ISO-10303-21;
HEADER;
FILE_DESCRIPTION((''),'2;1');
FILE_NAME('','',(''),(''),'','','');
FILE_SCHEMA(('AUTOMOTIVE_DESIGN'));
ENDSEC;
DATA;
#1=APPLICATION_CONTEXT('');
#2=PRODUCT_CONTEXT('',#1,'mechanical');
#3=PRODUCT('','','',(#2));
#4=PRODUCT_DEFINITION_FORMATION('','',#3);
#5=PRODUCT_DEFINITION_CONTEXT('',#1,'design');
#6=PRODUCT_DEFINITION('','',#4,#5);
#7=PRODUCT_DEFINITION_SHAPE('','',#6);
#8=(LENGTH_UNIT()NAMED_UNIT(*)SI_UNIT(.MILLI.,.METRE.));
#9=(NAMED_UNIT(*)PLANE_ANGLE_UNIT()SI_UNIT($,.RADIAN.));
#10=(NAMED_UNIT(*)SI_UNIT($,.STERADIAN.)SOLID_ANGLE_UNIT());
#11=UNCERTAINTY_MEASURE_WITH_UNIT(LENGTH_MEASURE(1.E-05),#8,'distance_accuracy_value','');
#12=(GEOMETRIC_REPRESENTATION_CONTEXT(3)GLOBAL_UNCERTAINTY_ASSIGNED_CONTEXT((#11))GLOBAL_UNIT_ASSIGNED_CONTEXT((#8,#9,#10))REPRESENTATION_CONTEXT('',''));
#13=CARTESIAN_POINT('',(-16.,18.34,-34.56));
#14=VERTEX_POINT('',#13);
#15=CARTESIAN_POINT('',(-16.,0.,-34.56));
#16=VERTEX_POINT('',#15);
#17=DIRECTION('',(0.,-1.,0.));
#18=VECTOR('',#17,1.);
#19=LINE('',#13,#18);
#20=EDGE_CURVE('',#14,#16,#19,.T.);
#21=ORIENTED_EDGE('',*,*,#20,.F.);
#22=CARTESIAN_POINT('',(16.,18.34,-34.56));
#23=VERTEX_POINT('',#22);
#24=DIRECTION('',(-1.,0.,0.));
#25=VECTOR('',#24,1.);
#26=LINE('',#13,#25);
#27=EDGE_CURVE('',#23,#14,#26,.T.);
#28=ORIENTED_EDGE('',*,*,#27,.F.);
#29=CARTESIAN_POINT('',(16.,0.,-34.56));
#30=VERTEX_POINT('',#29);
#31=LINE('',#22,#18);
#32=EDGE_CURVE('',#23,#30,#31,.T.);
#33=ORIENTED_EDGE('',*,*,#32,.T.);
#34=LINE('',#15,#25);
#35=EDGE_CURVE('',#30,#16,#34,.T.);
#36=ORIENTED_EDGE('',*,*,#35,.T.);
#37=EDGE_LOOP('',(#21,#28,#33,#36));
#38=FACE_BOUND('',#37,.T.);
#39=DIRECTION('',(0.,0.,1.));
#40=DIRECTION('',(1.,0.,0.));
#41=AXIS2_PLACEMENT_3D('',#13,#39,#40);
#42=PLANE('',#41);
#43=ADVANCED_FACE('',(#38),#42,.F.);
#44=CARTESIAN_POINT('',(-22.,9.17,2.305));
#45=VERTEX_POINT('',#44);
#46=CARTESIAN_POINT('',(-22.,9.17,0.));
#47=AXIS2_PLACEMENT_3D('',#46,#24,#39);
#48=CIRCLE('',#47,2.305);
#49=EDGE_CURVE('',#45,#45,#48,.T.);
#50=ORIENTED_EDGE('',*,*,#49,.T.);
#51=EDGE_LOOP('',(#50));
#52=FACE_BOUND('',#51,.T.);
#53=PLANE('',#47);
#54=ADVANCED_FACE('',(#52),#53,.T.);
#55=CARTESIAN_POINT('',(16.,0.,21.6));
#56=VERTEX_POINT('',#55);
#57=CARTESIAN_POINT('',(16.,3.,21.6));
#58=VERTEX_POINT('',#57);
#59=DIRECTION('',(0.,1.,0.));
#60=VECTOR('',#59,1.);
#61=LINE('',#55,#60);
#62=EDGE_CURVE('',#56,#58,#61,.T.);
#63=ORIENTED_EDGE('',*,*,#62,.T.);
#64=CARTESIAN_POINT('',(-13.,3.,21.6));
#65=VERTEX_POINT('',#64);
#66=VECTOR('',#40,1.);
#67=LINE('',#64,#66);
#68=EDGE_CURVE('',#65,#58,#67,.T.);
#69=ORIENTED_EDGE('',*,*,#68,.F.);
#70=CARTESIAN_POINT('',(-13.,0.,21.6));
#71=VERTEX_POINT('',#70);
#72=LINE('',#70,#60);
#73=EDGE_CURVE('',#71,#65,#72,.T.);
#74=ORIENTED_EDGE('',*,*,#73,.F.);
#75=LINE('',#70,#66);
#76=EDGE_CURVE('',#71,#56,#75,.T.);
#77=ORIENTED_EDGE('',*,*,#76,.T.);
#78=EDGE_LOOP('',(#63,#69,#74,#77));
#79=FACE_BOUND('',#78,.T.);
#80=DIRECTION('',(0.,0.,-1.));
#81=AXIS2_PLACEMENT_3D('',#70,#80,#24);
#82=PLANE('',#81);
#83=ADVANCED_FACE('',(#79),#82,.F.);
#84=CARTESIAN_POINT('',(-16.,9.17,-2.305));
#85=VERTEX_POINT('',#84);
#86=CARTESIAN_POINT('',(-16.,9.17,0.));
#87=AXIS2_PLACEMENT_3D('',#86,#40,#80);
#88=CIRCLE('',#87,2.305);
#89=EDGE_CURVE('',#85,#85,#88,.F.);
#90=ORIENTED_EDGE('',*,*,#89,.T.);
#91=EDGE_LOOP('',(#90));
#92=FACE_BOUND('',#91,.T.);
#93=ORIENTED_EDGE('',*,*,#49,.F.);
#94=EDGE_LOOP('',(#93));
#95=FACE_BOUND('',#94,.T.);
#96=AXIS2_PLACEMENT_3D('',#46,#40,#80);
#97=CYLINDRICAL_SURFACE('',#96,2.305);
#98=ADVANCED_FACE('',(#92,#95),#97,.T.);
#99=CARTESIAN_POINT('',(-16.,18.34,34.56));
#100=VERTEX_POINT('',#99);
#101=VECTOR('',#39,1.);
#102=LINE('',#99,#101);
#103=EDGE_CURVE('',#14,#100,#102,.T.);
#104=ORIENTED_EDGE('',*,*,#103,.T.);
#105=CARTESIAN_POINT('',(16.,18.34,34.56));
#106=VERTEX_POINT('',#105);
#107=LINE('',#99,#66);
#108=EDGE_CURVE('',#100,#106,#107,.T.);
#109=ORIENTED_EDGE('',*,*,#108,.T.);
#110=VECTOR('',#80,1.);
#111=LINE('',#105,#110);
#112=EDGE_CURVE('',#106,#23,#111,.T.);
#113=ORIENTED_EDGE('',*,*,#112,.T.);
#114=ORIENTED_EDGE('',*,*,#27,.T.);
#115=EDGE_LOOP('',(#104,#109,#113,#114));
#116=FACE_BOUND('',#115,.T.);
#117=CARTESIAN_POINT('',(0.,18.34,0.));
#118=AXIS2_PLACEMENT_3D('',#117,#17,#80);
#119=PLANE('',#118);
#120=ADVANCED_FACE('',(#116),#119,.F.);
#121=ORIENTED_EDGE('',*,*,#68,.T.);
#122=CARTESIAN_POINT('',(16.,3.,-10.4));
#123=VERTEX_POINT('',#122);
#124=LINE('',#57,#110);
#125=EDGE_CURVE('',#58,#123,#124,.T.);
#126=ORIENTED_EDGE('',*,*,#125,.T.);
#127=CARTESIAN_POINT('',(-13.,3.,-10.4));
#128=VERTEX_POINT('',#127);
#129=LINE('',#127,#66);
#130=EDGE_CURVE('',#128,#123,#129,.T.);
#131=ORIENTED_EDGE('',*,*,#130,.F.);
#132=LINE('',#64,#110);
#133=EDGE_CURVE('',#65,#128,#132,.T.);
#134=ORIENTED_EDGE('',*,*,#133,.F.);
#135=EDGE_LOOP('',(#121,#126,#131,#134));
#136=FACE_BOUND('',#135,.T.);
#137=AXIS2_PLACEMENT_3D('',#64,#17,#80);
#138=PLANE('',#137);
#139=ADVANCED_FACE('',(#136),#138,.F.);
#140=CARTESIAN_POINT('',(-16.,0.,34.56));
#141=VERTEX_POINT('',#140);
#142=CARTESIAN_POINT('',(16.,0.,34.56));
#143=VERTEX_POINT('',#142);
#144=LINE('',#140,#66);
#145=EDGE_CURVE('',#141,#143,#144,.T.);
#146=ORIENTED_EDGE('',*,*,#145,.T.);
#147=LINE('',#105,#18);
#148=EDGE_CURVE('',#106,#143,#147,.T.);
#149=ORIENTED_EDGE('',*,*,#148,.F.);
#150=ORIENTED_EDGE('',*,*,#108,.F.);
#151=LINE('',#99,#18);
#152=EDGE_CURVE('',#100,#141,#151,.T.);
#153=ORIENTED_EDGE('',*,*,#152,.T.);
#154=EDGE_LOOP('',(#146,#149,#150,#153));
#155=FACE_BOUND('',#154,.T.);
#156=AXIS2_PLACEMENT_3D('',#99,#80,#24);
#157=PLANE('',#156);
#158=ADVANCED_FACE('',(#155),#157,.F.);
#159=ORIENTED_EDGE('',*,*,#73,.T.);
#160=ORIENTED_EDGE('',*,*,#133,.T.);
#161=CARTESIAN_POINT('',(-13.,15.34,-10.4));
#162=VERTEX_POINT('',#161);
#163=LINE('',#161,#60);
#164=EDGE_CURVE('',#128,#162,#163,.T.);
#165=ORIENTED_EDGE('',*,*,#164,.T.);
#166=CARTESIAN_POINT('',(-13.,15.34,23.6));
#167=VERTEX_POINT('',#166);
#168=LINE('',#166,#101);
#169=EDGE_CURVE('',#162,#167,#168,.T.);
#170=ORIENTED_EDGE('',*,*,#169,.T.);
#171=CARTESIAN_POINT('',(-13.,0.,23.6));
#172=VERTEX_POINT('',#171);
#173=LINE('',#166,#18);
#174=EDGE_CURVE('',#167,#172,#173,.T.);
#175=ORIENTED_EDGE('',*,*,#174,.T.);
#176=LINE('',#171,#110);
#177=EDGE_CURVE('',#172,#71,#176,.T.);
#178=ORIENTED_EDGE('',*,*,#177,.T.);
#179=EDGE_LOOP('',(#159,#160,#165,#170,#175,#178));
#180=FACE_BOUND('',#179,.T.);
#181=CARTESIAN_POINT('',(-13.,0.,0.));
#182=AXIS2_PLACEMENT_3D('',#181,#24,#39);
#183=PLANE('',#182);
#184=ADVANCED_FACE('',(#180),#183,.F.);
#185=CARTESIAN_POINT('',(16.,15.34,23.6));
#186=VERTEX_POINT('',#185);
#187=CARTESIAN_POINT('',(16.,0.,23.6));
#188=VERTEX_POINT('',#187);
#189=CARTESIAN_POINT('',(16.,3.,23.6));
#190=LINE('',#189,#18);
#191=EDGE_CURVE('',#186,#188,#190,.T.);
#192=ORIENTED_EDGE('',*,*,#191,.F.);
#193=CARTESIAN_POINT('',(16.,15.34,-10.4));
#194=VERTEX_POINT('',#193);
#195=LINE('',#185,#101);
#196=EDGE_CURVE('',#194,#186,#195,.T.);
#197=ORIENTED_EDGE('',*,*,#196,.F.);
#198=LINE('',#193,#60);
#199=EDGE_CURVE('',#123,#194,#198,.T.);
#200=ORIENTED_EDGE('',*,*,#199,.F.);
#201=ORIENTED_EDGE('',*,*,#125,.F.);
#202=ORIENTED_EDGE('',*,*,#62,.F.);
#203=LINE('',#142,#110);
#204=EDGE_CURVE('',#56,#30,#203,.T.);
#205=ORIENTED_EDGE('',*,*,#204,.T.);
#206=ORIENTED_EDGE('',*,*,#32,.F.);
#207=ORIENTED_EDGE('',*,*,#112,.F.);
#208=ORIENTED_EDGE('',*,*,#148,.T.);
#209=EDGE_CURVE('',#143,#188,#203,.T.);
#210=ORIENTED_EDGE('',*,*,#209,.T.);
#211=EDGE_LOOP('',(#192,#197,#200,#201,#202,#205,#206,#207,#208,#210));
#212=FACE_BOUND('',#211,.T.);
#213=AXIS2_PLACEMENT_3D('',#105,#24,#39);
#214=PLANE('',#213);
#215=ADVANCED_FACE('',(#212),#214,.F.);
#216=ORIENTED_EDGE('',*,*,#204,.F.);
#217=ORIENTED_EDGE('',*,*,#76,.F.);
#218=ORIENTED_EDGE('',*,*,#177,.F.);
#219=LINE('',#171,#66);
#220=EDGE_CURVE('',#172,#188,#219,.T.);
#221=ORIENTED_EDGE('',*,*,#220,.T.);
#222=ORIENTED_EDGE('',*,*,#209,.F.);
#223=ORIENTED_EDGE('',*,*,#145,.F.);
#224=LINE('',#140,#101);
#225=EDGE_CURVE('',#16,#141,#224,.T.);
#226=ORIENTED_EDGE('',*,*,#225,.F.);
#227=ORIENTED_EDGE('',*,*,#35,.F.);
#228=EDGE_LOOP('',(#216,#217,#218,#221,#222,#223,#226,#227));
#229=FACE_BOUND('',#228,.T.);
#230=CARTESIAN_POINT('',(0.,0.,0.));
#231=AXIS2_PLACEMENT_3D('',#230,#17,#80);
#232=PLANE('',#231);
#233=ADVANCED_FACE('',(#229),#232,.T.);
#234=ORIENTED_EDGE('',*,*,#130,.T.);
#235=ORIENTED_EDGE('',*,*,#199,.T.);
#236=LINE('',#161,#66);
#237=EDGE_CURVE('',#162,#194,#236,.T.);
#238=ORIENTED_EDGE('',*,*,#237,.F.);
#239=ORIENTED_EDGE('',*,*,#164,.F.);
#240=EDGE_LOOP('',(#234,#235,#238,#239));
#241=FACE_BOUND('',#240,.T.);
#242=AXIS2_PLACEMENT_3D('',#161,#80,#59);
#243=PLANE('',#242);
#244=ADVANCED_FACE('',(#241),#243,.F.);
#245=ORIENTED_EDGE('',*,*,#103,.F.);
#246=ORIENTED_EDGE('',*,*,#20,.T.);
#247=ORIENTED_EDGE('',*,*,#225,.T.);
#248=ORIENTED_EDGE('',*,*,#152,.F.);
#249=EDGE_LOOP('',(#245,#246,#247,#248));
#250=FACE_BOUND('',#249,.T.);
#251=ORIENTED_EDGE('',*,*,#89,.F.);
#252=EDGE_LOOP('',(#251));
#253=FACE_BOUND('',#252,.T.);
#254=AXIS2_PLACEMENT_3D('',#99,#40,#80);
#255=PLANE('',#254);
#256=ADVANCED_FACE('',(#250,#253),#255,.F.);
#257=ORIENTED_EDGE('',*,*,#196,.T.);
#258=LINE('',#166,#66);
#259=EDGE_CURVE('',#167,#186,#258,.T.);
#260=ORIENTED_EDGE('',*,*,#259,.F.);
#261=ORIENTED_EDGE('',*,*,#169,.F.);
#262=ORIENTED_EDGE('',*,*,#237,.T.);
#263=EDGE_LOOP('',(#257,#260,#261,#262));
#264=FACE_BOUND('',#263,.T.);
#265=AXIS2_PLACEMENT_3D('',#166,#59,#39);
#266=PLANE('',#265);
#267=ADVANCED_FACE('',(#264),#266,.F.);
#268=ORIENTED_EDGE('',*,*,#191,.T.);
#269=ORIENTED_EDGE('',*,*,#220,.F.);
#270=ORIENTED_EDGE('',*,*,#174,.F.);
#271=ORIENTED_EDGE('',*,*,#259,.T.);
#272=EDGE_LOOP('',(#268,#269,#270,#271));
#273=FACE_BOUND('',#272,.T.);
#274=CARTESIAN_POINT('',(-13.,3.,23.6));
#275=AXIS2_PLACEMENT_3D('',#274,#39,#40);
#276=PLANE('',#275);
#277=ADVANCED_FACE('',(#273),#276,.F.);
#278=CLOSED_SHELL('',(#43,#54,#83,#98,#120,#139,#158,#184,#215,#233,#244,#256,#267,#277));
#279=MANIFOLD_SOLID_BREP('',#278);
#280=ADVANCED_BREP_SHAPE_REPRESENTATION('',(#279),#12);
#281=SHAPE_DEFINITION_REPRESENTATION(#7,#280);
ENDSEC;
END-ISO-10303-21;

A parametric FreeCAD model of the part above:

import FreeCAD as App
import Part
import Sketcher

doc = App.newDocument("Part")
body = doc.addObject("PartDesign::Body", "Body")

sketch1 = body.newObject("Sketcher::SketchObject", "Sketch")
sketch1.AttachmentSupport = (doc.getObject("XZ_Plane"), [""])
sketch1.MapMode = "FlatFace"
sketch1.addGeometry(Part.LineSegment(App.Vector(-16, -34.56, 0), App.Vector(-16, 34.56, 0)), False)
sketch1.addGeometry(Part.LineSegment(App.Vector(-16, 34.56, 0), App.Vector(16, 34.56, 0)), False)
sketch1.addGeometry(Part.LineSegment(App.Vector(16, 34.56, 0), App.Vector(16, -34.56, 0)), False)
sketch1.addGeometry(Part.LineSegment(App.Vector(16, -34.56, 0), App.Vector(-16, -34.56, 0)), False)
sketch1.addConstraint(Sketcher.Constraint("Coincident", 0, 2, 1, 1))
sketch1.addConstraint(Sketcher.Constraint("Coincident", 1, 2, 2, 1))
sketch1.addConstraint(Sketcher.Constraint("Coincident", 2, 2, 3, 1))
sketch1.addConstraint(Sketcher.Constraint("Coincident", 3, 2, 0, 1))
sketch1.addConstraint(Sketcher.Constraint("Vertical", 0))
sketch1.addConstraint(Sketcher.Constraint("Horizontal", 1))
sketch1.addConstraint(Sketcher.Constraint("Vertical", 2))
sketch1.addConstraint(Sketcher.Constraint("Horizontal", 3))
sketch1.addConstraint(Sketcher.Constraint("Symmetric", 0, 2, 2, 2, -1, 1))
sketch1.addConstraint(Sketcher.Constraint("DistanceX", 1, 1, 1, 2, 32.0))
sketch1.addConstraint(Sketcher.Constraint("DistanceY", 0, 1, 0, 2, 69.12))
pad1 = body.newObject("PartDesign::Pad", "Pad")
pad1.Profile = sketch1
pad1.Length = 18.34
pad1.Reversed = True

sketch2 = body.newObject("Sketcher::SketchObject", "Sketch001")
sketch2.AttachmentSupport = (doc.getObject("YZ_Plane"), [""])
sketch2.MapMode = "FlatFace"
sketch2.AttachmentOffset = App.Placement(App.Vector(0, 0, 16), App.Rotation())
sketch2.addGeometry(Part.LineSegment(App.Vector(15.34, -10.4, 0), App.Vector(15.34, 23.6, 0)), False)
sketch2.addGeometry(Part.LineSegment(App.Vector(15.34, 23.6, 0), App.Vector(0, 23.6, 0)), False)
sketch2.addGeometry(Part.LineSegment(App.Vector(0, 23.6, 0), App.Vector(0, 21.6, 0)), False)
sketch2.addGeometry(Part.LineSegment(App.Vector(0, 21.6, 0), App.Vector(3, 21.6, 0)), False)
sketch2.addGeometry(Part.LineSegment(App.Vector(3, 21.6, 0), App.Vector(3, -10.4, 0)), False)
sketch2.addGeometry(Part.LineSegment(App.Vector(3, -10.4, 0), App.Vector(15.34, -10.4, 0)), False)
sketch2.addConstraint(Sketcher.Constraint("Coincident", 0, 2, 1, 1))
sketch2.addConstraint(Sketcher.Constraint("Coincident", 1, 2, 2, 1))
sketch2.addConstraint(Sketcher.Constraint("Coincident", 2, 2, 3, 1))
sketch2.addConstraint(Sketcher.Constraint("Coincident", 3, 2, 4, 1))
sketch2.addConstraint(Sketcher.Constraint("Coincident", 4, 2, 5, 1))
sketch2.addConstraint(Sketcher.Constraint("Coincident", 5, 2, 0, 1))
sketch2.addConstraint(Sketcher.Constraint("Vertical", 0))
sketch2.addConstraint(Sketcher.Constraint("Horizontal", 1))
sketch2.addConstraint(Sketcher.Constraint("Vertical", 2))
sketch2.addConstraint(Sketcher.Constraint("Horizontal", 3))
sketch2.addConstraint(Sketcher.Constraint("Vertical", 4))
sketch2.addConstraint(Sketcher.Constraint("Horizontal", 5))
sketch2.addConstraint(Sketcher.Constraint("PointOnObject", 1, 2, -2))
sketch2.addConstraint(Sketcher.Constraint("DistanceX", 3, 1, 3, 2, 3.0))
sketch2.addConstraint(Sketcher.Constraint("DistanceY", 0, 1, 0, 2, 34.0))
sketch2.addConstraint(Sketcher.Constraint("DistanceY", 2, 2, 2, 1, 2.0))
sketch2.addConstraint(Sketcher.Constraint("DistanceX", 1, 2, 1, 1, 15.34))
sketch2.addConstraint(Sketcher.Constraint("DistanceY", -1, 1, 0, 2, 23.6))
pocket1 = body.newObject("PartDesign::Pocket", "Pocket")
pocket1.Profile = sketch2
pocket1.Length = 29

sketch3 = body.newObject("Sketcher::SketchObject", "Sketch002")
sketch3.AttachmentSupport = (doc.getObject("YZ_Plane"), [""])
sketch3.MapMode = "FlatFace"
sketch3.AttachmentOffset = App.Placement(App.Vector(0, 0, -16), App.Rotation())
sketch3.addGeometry(Part.Circle(App.Vector(9.17, 0, 0), App.Vector(0, 0, 1), 2.305), False)
sketch3.addConstraint(Sketcher.Constraint("PointOnObject", 0, 3, -1))
sketch3.addConstraint(Sketcher.Constraint("Diameter", 0, 4.61))
sketch3.addConstraint(Sketcher.Constraint("DistanceX", -1, 1, 0, 3, 9.17))
pad2 = body.newObject("PartDesign::Pad", "Pad001")
pad2.Profile = sketch3
pad2.Length = 6
pad2.Reversed = True

doc.recompute()
